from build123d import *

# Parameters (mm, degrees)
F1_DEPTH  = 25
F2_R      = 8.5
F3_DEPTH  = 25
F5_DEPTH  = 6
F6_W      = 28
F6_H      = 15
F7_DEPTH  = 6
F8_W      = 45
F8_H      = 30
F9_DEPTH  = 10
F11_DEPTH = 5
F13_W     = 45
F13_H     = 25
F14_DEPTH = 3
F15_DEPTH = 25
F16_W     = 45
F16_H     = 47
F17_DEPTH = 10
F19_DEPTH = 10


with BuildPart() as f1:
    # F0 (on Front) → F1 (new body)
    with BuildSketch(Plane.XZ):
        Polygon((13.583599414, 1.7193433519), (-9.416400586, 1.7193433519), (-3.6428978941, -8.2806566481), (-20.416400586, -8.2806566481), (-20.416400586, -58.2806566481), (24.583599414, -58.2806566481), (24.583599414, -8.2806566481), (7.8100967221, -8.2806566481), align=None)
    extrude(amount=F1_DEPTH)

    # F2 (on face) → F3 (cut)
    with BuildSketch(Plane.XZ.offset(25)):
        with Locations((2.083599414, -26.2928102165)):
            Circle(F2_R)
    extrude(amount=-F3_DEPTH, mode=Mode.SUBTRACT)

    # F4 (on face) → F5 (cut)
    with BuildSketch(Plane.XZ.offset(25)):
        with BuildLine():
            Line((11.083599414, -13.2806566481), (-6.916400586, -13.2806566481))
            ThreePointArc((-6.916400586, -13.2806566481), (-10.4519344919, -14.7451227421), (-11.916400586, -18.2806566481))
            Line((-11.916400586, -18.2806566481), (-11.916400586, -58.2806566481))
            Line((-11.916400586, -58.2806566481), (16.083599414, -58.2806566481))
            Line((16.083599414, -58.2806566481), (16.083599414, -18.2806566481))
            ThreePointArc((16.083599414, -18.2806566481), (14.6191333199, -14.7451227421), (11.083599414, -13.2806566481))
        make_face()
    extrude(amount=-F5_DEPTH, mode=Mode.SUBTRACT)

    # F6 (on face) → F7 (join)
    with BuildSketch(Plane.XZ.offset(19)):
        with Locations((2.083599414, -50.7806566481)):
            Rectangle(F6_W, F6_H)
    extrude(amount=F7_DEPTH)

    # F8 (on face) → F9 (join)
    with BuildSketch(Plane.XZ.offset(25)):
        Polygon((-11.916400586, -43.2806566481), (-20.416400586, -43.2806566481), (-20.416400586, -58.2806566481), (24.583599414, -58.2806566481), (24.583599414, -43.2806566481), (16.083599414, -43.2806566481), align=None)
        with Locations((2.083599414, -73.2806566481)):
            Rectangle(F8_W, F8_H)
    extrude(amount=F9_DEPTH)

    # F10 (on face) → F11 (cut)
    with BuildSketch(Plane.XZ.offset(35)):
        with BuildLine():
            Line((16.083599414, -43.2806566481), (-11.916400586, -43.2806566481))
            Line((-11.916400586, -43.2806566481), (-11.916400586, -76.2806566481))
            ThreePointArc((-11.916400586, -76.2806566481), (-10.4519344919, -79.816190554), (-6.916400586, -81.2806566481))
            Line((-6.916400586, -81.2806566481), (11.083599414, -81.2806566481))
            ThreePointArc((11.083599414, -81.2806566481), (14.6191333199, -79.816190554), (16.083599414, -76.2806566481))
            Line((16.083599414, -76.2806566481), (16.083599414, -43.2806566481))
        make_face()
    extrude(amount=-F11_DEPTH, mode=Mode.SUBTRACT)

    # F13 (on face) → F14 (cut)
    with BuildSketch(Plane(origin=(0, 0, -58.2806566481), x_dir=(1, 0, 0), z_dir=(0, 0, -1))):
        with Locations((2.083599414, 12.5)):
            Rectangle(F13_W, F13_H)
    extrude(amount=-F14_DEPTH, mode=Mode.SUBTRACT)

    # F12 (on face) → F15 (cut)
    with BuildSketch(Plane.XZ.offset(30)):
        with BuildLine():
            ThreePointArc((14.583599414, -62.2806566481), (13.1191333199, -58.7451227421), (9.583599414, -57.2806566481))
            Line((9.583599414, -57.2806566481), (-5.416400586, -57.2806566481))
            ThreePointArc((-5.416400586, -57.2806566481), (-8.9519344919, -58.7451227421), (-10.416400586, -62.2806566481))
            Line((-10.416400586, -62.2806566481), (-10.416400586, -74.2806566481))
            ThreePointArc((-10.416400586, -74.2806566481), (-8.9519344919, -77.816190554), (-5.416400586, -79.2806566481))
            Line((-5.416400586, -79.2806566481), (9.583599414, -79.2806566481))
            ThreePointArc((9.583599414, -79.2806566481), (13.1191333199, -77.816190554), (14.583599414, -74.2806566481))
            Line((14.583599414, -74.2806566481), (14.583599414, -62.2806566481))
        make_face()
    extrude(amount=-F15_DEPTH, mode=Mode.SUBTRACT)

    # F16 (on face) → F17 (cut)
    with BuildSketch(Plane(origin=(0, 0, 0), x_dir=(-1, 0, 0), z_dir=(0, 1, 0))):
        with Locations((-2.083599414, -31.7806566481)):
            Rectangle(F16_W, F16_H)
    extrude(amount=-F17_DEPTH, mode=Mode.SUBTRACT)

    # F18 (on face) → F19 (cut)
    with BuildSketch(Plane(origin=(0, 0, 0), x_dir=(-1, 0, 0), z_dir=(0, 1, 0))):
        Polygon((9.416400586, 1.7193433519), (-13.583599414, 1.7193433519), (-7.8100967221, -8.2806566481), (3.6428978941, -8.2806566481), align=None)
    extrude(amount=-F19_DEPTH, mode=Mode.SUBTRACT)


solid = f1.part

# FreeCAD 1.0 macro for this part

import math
import FreeCAD as App
import Part
import Sketcher
Q = App.Units.Quantity


def add_polygon(sketch, points):
    """Adds a closed chain of lines whose ends are joined by coincident constraints."""
    first, n = sketch.GeometryCount, len(points)
    for a, b in zip(points, points[1:] + points[:1]):
        sketch.addGeometry(Part.LineSegment(App.Vector(*a, 0), App.Vector(*b, 0)), False)
    for i in range(n):
        sketch.addConstraint(Sketcher.Constraint("Coincident", first + i, 2, first + (i + 1) % n, 1))

doc = App.newDocument("Part")
body = doc.addObject("PartDesign::Body", "Body")

# Sketch on XZ plane
sketch1 = body.newObject("Sketcher::SketchObject", "Sketch")
sketch1.AttachmentSupport = (doc.getObject("XZ_Plane"), [""])
sketch1.MapMode = "FlatFace"
add_polygon(sketch1, [(14, 2), (-9, 2), (-4, -8), (-20, -8), (-20, -58), (25, -58), (25, -8), (8, -8)])  # lines 0-7
sketch1.addConstraint([
    Sketcher.Constraint("Horizontal", 0),
    Sketcher.Constraint("Horizontal", 2),
    Sketcher.Constraint("Vertical", 3),
    Sketcher.Constraint("Horizontal", 4),
    Sketcher.Constraint("Vertical", 5),
    Sketcher.Constraint("Horizontal", 6),
    Sketcher.Constraint("Horizontal", 2, 2, 5, 2),
    Sketcher.Constraint("Equal", 2, 6),
    Sketcher.Constraint("Equal", 1, 7),
    Sketcher.Constraint("DistanceX", 0, 2, 0, 1, Q("23 mm")),
    Sketcher.Constraint("DistanceX", 4, 1, 4, 2, Q("45 mm")),
    Sketcher.Constraint("DistanceY", 3, 2, 3, 1, Q("50 mm")),
    Sketcher.Constraint("Angle", 1, Q("-60 deg")),
    Sketcher.Constraint("DistanceY", 1, 2, 0, 2, Q("10 mm")),
    Sketcher.Constraint("DistanceX", 0, 2, -1, 1, Q("9.416401 mm")),
    Sketcher.Constraint("DistanceY", -1, 1, 0, 2, Q("1.719343 mm")),
])
pad1 = body.newObject("PartDesign::Pad", "Pad")
pad1.Profile = sketch1
pad1.Length = 25

# Sketch on XZ plane
sketch2 = body.newObject("Sketcher::SketchObject", "Sketch001")
sketch2.AttachmentSupport = (doc.getObject("XZ_Plane"), [""])
sketch2.MapMode = "FlatFace"
sketch2.AttachmentOffset = App.Placement(App.Vector(0, 0, 25), App.Rotation())
sketch2.addGeometry(Part.Circle(App.Vector(2, -26, 0), App.Vector(0, 0, 1), 8), False)
sketch2.addConstraint([
    Sketcher.Constraint("Diameter", 0, Q("17 mm")),
    Sketcher.Constraint("DistanceX", -1, 1, 0, 3, Q("2.083599 mm")),
    Sketcher.Constraint("DistanceY", 0, 3, -1, 1, Q("26.29281 mm")),
])
pocket1 = body.newObject("PartDesign::Pocket", "Pocket")
pocket1.Profile = sketch2
pocket1.Length = 25

# Sketch on XZ plane
sketch3 = body.newObject("Sketcher::SketchObject", "Sketch002")
sketch3.AttachmentSupport = (doc.getObject("XZ_Plane"), [""])
sketch3.MapMode = "FlatFace"
sketch3.AttachmentOffset = App.Placement(App.Vector(0, 0, 25), App.Rotation())
sketch3.addGeometry([
    Part.LineSegment(App.Vector(11, -13, 0), App.Vector(-7, -13, 0)),  # 0
    Part.ArcOfCircle(Part.Circle(App.Vector(-7, -18, 0), App.Vector(0, 0, 1), 5), math.radians(90), math.radians(180)),  # 1
    Part.LineSegment(App.Vector(-12, -18, 0), App.Vector(-12, -58, 0)),  # 2
    Part.LineSegment(App.Vector(-12, -58, 0), App.Vector(16, -58, 0)),  # 3
    Part.LineSegment(App.Vector(16, -58, 0), App.Vector(16, -18, 0)),  # 4
    Part.ArcOfCircle(Part.Circle(App.Vector(11, -18, 0), App.Vector(0, 0, 1), 5), math.radians(0), math.radians(90)),  # 5
], False)
sketch3.addConstraint([
    Sketcher.Constraint("Tangent", 0, 2, 1, 1),
    Sketcher.Constraint("Tangent", 1, 2, 2, 1),
    Sketcher.Constraint("Coincident", 2, 2, 3, 1),
    Sketcher.Constraint("Coincident", 3, 2, 4, 1),
    Sketcher.Constraint("Tangent", 4, 2, 5, 1),
    Sketcher.Constraint("Tangent", 5, 2, 0, 1),
    Sketcher.Constraint("Horizontal", 0),
    Sketcher.Constraint("Vertical", 2),
    Sketcher.Constraint("Horizontal", 3),
    Sketcher.Constraint("Vertical", 4),
    Sketcher.Constraint("Equal", 1, 5),
    Sketcher.Constraint("Radius", 1, Q("5 mm")),
    Sketcher.Constraint("DistanceX", 0, 2, 0, 1, Q("18 mm")),
    Sketcher.Constraint("DistanceY", 2, 2, 2, 1, Q("40 mm")),
    Sketcher.Constraint("DistanceX", 1, 3, -1, 1, Q("6.916401 mm")),
    Sketcher.Constraint("DistanceY", 1, 3, -1, 1, Q("18.280657 mm")),
])
pocket2 = body.newObject("PartDesign::Pocket", "Pocket001")
pocket2.Profile = sketch3
pocket2.Length = 6

# Sketch on XZ plane
sketch4 = body.newObject("Sketcher::SketchObject", "Sketch003")
sketch4.AttachmentSupport = (doc.getObject("XZ_Plane"), [""])
sketch4.MapMode = "FlatFace"
sketch4.AttachmentOffset = App.Placement(App.Vector(0, 0, 19), App.Rotation())
add_polygon(sketch4, [(-12, -43), (-12, -58), (16, -58), (16, -43)])  # lines 0-3
sketch4.addConstraint([
    Sketcher.Constraint("Vertical", 0),
    Sketcher.Constraint("Horizontal", 1),
    Sketcher.Constraint("Vertical", 2),
    Sketcher.Constraint("Horizontal", 3),
    Sketcher.Constraint("DistanceX", 1, 1, 1, 2, Q("28 mm")),
    Sketcher.Constraint("DistanceY", 0, 2, 0, 1, Q("15 mm")),
    Sketcher.Constraint("DistanceX", 0, 2, -1, 1, Q("11.916401 mm")),
    Sketcher.Constraint("DistanceY", 0, 2, -1, 1, Q("58.280657 mm")),
])
pad2 = body.newObject("PartDesign::Pad", "Pad001")
pad2.Profile = sketch4
pad2.Length = 6

# Sketch on XZ plane
sketch5 = body.newObject("Sketcher::SketchObject", "Sketch004")
sketch5.AttachmentSupport = (doc.getObject("XZ_Plane"), [""])
sketch5.MapMode = "FlatFace"
sketch5.AttachmentOffset = App.Placement(App.Vector(0, 0, 25), App.Rotation())
add_polygon(sketch5, [(-20, -43), (-20, -88), (25, -88), (25, -43)])  # lines 0-3
sketch5.addConstraint([
    Sketcher.Constraint("Vertical", 0),
    Sketcher.Constraint("Horizontal", 1),
    Sketcher.Constraint("Vertical", 2),
    Sketcher.Constraint("Horizontal", 3),
    Sketcher.Constraint("Equal", 3, 0),
    Sketcher.Constraint("DistanceX", 1, 1, 1, 2, Q("45 mm")),
    Sketcher.Constraint("DistanceX", 0, 2, -1, 1, Q("20.416401 mm")),
    Sketcher.Constraint("DistanceY", 0, 2, -1, 1, Q("88.280657 mm")),
])
pad3 = body.newObject("PartDesign::Pad", "Pad002")
pad3.Profile = sketch5
pad3.Length = 10

# Sketch on XZ plane
sketch6 = body.newObject("Sketcher::SketchObject", "Sketch005")
sketch6.AttachmentSupport = (doc.getObject("XZ_Plane"), [""])
sketch6.MapMode = "FlatFace"
sketch6.AttachmentOffset = App.Placement(App.Vector(0, 0, 35), App.Rotation())
sketch6.addGeometry([
    Part.LineSegment(App.Vector(16, -43, 0), App.Vector(-12, -43, 0)),  # 0
    Part.LineSegment(App.Vector(-12, -43, 0), App.Vector(-12, -76, 0)),  # 1
    Part.ArcOfCircle(Part.Circle(App.Vector(-7, -76, 0), App.Vector(0, 0, 1), 5), math.radians(180), math.radians(270)),  # 2
    Part.LineSegment(App.Vector(-7, -81, 0), App.Vector(11, -81, 0)),  # 3
    Part.ArcOfCircle(Part.Circle(App.Vector(11, -76, 0), App.Vector(0, 0, 1), 5), math.radians(-90), math.radians(0)),  # 4
    Part.LineSegment(App.Vector(16, -76, 0), App.Vector(16, -43, 0)),  # 5
], False)
sketch6.addConstraint([
    Sketcher.Constraint("Coincident", 0, 2, 1, 1),
    Sketcher.Constraint("Tangent", 1, 2, 2, 1),
    Sketcher.Constraint("Tangent", 2, 2, 3, 1),
    Sketcher.Constraint("Tangent", 3, 2, 4, 1),
    Sketcher.Constraint("Tangent", 4, 2, 5, 1),
    Sketcher.Constraint("Coincident", 5, 2, 0, 1),
    Sketcher.Constraint("Horizontal", 0),
    Sketcher.Constraint("Vertical", 1),
    Sketcher.Constraint("Horizontal", 3),
    Sketcher.Constraint("Vertical", 5),
    Sketcher.Constraint("Equal", 2, 4),
    Sketcher.Constraint("Radius", 2, Q("5 mm")),
    Sketcher.Constraint("DistanceX", 0, 2, 0, 1, Q("28 mm")),
    Sketcher.Constraint("DistanceY", 1, 2, 1, 1, Q("33 mm")),
    Sketcher.Constraint("DistanceX", 2, 3, -1, 1, Q("6.916401 mm")),
    Sketcher.Constraint("DistanceY", 2, 3, -1, 1, Q("76.280657 mm")),
])
pocket3 = body.newObject("PartDesign::Pocket", "Pocket002")
pocket3.Profile = sketch6
pocket3.Length = 5

# Sketch on XY plane
sketch7 = body.newObject("Sketcher::SketchObject", "Sketch006")
sketch7.AttachmentSupport = (doc.getObject("XY_Plane"), [""])
sketch7.MapMode = "FlatFace"
sketch7.AttachmentOffset = App.Placement(App.Vector(0, 0, -58.280657), App.Rotation())
add_polygon(sketch7, [(-20, -25), (-20, 0), (25, 0), (25, -25)])  # lines 0-3
sketch7.addConstraint([
    Sketcher.Constraint("Vertical", 0),
    Sketcher.Constraint("Horizontal", 1),
    Sketcher.Constraint("Vertical", 2),
    Sketcher.Constraint("Horizontal", 3),
    Sketcher.Constraint("PointOnObject", 0, 2, -1),
    Sketcher.Constraint("DistanceX", 1, 1, 1, 2, Q("45 mm")),
    Sketcher.Constraint("DistanceY", 0, 1, 0, 2, Q("25 mm")),
    Sketcher.Constraint("DistanceX", 0, 2, -1, 1, Q("20.416401 mm")),
])
pocket4 = body.newObject("PartDesign::Pocket", "Pocket003")
pocket4.Profile = sketch7
pocket4.Length = 3
pocket4.Reversed = True

# Sketch on XZ plane
sketch8 = body.newObject("Sketcher::SketchObject", "Sketch007")
sketch8.AttachmentSupport = (doc.getObject("XZ_Plane"), [""])
sketch8.MapMode = "FlatFace"
sketch8.AttachmentOffset = App.Placement(App.Vector(0, 0, 30), App.Rotation())
sketch8.addGeometry([
    Part.ArcOfCircle(Part.Circle(App.Vector(10, -62, 0), App.Vector(0, 0, 1), 5), math.radians(0), math.radians(90)),  # 0
    Part.LineSegment(App.Vector(10, -57, 0), App.Vector(-5, -57, 0)),  # 1
    Part.ArcOfCircle(Part.Circle(App.Vector(-5, -62, 0), App.Vector(0, 0, 1), 5), math.radians(90), math.radians(180)),  # 2
    Part.LineSegment(App.Vector(-10, -62, 0), App.Vector(-10, -74, 0)),  # 3
    Part.ArcOfCircle(Part.Circle(App.Vector(-5, -74, 0), App.Vector(0, 0, 1), 5), math.radians(180), math.radians(270)),  # 4
    Part.LineSegment(App.Vector(-5, -79, 0), App.Vector(10, -79, 0)),  # 5
    Part.ArcOfCircle(Part.Circle(App.Vector(10, -74, 0), App.Vector(0, 0, 1), 5), math.radians(-90), math.radians(0)),  # 6
    Part.LineSegment(App.Vector(15, -74, 0), App.Vector(15, -62, 0)),  # 7
], False)
sketch8.addConstraint([
    Sketcher.Constraint("Tangent", 0, 2, 1, 1),
    Sketcher.Constraint("Tangent", 1, 2, 2, 1),
    Sketcher.Constraint("Tangent", 2, 2, 3, 1),
    Sketcher.Constraint("Tangent", 3, 2, 4, 1),
    Sketcher.Constraint("Tangent", 4, 2, 5, 1),
    Sketcher.Constraint("Tangent", 5, 2, 6, 1),
    Sketcher.Constraint("Tangent", 6, 2, 7, 1),
    Sketcher.Constraint("Tangent", 7, 2, 0, 1),
    Sketcher.Constraint("Horizontal", 1),
    Sketcher.Constraint("Vertical", 3),
    Sketcher.Constraint("Horizontal", 5),
    Sketcher.Constraint("Vertical", 7),
    Sketcher.Constraint("Equal", 0, 2),
    Sketcher.Constraint("Equal", 2, 4),
    Sketcher.Constraint("Equal", 4, 6),
    Sketcher.Constraint("Radius", 0, Q("5 mm")),
    Sketcher.Constraint("DistanceX", 1, 2, 1, 1, Q("15 mm")),
    Sketcher.Constraint("DistanceY", 3, 2, 3, 1, Q("12 mm")),
    Sketcher.Constraint("DistanceX", -1, 1, 0, 3, Q("9.583599 mm")),
    Sketcher.Constraint("DistanceY", 0, 3, -1, 1, Q("62.280657 mm")),
])
pocket5 = body.newObject("PartDesign::Pocket", "Pocket004")
pocket5.Profile = sketch8
pocket5.Length = 25

# Sketch on XZ plane
sketch9 = body.newObject("Sketcher::SketchObject", "Sketch008")
sketch9.AttachmentSupport = (doc.getObject("XZ_Plane"), [""])
sketch9.MapMode = "FlatFace"
add_polygon(sketch9, [(25, -8), (25, -55), (-20, -55), (-20, -8)])  # lines 0-3
sketch9.addConstraint([
    Sketcher.Constraint("Vertical", 0),
    Sketcher.Constraint("Horizontal", 1),
    Sketcher.Constraint("Vertical", 2),
    Sketcher.Constraint("Horizontal", 3),
    Sketcher.Constraint("DistanceX", 1, 2, 1, 1, Q("45 mm")),
    Sketcher.Constraint("DistanceY", 0, 2, 0, 1, Q("47 mm")),
    Sketcher.Constraint("DistanceX", -1, 1, 0, 2, Q("24.583599 mm")),
    Sketcher.Constraint("DistanceY", 0, 2, -1, 1, Q("55.280657 mm")),
])
pocket6 = body.newObject("PartDesign::Pocket", "Pocket005")
pocket6.Profile = sketch9
pocket6.Length = 10
pocket6.Reversed = True

# Sketch on XZ plane
sketch10 = body.newObject("Sketcher::SketchObject", "Sketch009")
sketch10.AttachmentSupport = (doc.getObject("XZ_Plane"), [""])
sketch10.MapMode = "FlatFace"
add_polygon(sketch10, [(-9, 2), (14, 2), (8, -8), (-4, -8)])  # lines 0-3
sketch10.addConstraint([
    Sketcher.Constraint("Horizontal", 0),
    Sketcher.Constraint("Horizontal", 2),
    Sketcher.Constraint("Equal", 1, 3),
    Sketcher.Constraint("DistanceX", 0, 1, 0, 2, Q("23 mm")),
    Sketcher.Constraint("Angle", 1, Q("-120 deg")),
    Sketcher.Constraint("DistanceY", 1, 2, 0, 2, Q("10 mm")),
    Sketcher.Constraint("DistanceX", -1, 1, 0, 2, Q("13.583599 mm")),
    Sketcher.Constraint("DistanceY", -1, 1, 0, 2, Q("1.719343 mm")),
])
pocket7 = body.newObject("PartDesign::Pocket", "Pocket006")
pocket7.Profile = sketch10
pocket7.Length = 10
pocket7.Reversed = True

doc.recompute()
